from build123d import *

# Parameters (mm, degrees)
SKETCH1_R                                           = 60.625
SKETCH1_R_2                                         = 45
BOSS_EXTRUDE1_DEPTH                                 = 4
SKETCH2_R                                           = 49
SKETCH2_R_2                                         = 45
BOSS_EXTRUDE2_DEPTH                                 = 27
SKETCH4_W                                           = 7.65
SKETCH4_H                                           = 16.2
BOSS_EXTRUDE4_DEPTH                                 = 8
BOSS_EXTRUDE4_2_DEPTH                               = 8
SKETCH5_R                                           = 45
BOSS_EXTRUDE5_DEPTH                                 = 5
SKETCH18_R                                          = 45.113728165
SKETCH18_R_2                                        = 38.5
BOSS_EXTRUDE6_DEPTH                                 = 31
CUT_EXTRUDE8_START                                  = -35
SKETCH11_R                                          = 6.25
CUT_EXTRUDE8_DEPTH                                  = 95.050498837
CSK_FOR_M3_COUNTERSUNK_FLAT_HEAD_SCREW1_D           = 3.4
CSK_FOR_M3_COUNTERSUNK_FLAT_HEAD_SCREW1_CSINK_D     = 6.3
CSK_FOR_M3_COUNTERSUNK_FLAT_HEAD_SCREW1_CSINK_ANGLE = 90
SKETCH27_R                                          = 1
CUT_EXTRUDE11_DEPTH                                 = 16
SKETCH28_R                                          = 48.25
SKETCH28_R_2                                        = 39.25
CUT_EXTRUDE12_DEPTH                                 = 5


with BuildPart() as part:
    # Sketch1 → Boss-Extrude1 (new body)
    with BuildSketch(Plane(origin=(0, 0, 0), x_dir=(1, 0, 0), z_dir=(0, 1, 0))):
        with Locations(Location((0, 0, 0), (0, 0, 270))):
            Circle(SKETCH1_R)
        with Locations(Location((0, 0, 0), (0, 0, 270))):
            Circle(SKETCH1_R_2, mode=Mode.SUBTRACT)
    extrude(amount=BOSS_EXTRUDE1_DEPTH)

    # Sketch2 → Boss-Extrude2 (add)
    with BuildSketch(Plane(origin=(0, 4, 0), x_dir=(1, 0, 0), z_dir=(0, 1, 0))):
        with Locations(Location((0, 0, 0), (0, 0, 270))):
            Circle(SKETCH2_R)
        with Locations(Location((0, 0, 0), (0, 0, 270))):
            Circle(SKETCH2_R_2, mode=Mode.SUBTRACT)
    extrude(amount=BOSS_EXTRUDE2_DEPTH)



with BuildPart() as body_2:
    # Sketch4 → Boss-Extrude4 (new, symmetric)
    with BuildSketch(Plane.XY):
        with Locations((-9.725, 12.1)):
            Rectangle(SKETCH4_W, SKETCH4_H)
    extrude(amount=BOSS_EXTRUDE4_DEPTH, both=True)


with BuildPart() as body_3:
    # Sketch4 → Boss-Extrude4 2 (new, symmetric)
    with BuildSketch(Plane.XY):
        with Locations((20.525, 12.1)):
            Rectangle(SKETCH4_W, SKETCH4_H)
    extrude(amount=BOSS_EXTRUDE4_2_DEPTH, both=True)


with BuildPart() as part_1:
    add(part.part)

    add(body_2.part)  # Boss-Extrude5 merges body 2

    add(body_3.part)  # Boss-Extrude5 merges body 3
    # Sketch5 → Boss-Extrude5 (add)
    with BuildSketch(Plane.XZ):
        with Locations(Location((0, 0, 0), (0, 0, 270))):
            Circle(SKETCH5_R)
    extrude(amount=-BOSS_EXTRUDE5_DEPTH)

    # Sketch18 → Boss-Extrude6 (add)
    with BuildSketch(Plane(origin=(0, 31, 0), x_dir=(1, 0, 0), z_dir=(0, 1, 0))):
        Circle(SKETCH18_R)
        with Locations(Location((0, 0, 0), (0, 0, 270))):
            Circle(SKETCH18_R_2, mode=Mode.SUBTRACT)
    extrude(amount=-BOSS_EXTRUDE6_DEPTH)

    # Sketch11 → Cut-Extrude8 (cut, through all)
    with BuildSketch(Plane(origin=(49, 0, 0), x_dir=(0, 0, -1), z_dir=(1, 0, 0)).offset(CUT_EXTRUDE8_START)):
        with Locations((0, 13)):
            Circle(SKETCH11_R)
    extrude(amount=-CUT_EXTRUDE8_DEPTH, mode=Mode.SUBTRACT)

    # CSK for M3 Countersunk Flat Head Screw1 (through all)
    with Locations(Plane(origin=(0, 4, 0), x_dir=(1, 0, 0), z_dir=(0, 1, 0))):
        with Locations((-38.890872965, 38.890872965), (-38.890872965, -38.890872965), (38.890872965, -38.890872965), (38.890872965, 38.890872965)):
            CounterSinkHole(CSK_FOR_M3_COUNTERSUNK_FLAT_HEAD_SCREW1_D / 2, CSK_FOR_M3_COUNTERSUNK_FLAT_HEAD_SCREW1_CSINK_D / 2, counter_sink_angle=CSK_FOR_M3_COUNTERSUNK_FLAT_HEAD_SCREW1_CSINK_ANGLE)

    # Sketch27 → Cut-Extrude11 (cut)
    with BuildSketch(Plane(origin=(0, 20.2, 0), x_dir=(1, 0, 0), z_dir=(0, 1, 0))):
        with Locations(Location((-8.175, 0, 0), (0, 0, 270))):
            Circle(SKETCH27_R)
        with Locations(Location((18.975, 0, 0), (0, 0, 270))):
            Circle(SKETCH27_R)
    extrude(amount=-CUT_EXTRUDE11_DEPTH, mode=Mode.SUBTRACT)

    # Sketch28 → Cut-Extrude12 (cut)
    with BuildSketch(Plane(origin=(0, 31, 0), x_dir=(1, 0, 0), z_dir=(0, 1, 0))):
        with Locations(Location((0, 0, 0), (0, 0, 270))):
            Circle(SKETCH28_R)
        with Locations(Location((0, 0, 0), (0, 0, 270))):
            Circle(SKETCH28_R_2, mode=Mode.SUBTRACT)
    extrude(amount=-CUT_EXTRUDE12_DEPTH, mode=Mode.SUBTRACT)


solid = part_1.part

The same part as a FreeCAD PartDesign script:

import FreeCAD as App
import Part
import Sketcher


def add_polygon(sketch, points):
    """Adds a closed chain of lines whose ends are joined by coincident constraints."""
    first, n = sketch.GeometryCount, len(points)
    for a, b in zip(points, points[1:] + points[:1]):
        sketch.addGeometry(Part.LineSegment(App.Vector(*a, 0), App.Vector(*b, 0)), False)
    for i in range(n):
        sketch.addConstraint(Sketcher.Constraint("Coincident", first + i, 2, first + (i + 1) % n, 1))

doc = App.newDocument("Part")
body = doc.addObject("PartDesign::Body", "Body")

# Sketch on XZ plane
sketch1 = doc.addObject("Sketcher::SketchObject", "Sketch")
body.addObject(sketch1)
sketch1.AttachmentSupport = (doc.XZ_Plane, [""])
sketch1.MapMode = "FlatFace"
sketch1.addGeometry(Part.Circle(App.Vector(0, 0, 0), App.Vector(0, 0, 1), 61), False)
sketch1.addGeometry(Part.Circle(App.Vector(0, 0, 0), App.Vector(0, 0, 1), 45), False)
sketch1.addConstraint(Sketcher.Constraint("Coincident", 0, 3, -1, 1))
sketch1.addConstraint(Sketcher.Constraint("Coincident", 1, 3, -1, 1))
sketch1.addConstraint(Sketcher.Constraint("Diameter", 1, 90.0))
sketch1.addConstraint(Sketcher.Constraint("Diameter", 0, 121.25))
pad1 = doc.addObject("PartDesign::Pad", "Pad")
body.addObject(pad1)
pad1.Profile = sketch1
pad1.Length = 4
pad1.Reversed = True

# Sketch on XZ plane
sketch2 = doc.addObject("Sketcher::SketchObject", "Sketch001")
body.addObject(sketch2)
sketch2.AttachmentSupport = (doc.XZ_Plane, [""])
sketch2.MapMode = "FlatFace"
sketch2.AttachmentOffset = App.Placement(App.Vector(0, 0, -4), App.Rotation())
sketch2.addGeometry(Part.Circle(App.Vector(0, 0, 0), App.Vector(0, 0, 1), 49), False)
sketch2.addGeometry(Part.Circle(App.Vector(0, 0, 0), App.Vector(0, 0, 1), 45), False)
sketch2.addConstraint(Sketcher.Constraint("Coincident", 0, 3, -1, 1))
sketch2.addConstraint(Sketcher.Constraint("Coincident", 1, 3, -1, 1))
sketch2.addConstraint(Sketcher.Constraint("Diameter", 0, 98.0))
sketch2.addConstraint(Sketcher.Constraint("Diameter", 1, 90.0))
pad2 = doc.addObject("PartDesign::Pad", "Pad001")
body.addObject(pad2)
pad2.Profile = sketch2
pad2.Length = 27
pad2.Reversed = True
body2 = doc.addObject("PartDesign::Body", "Body001")

# Sketch on XY plane
sketch3 = doc.addObject("Sketcher::SketchObject", "Sketch002")
body2.addObject(sketch3)
sketch3.AttachmentSupport = (doc.getObject("XY_Plane001"), [""])
sketch3.MapMode = "FlatFace"
add_polygon(sketch3, [(-14, 20), (-14, 4), (-6, 4), (-6, 20)])  # lines 0-3
sketch3.addConstraint(Sketcher.Constraint("Vertical", 0))
sketch3.addConstraint(Sketcher.Constraint("Horizontal", 1))
sketch3.addConstraint(Sketcher.Constraint("Vertical", 2))
sketch3.addConstraint(Sketcher.Constraint("Horizontal", 3))
sketch3.addConstraint(Sketcher.Constraint("DistanceY", 0, 2, 0, 1, 16.2))
sketch3.addConstraint(Sketcher.Constraint("DistanceY", -1, 1, 0, 2, 4.0))
sketch3.addConstraint(Sketcher.Constraint("DistanceX", 1, 1, 1, 2, 7.65))
sketch3.addConstraint(Sketcher.Constraint("DistanceX", 1, 2, -1, 1, 5.9))
pad3 = doc.addObject("PartDesign::Pad", "Pad002")
body2.addObject(pad3)
pad3.Profile = sketch3
pad3.Length = 16
pad3.Midplane = True
body3 = doc.addObject("PartDesign::Body", "Body002")

# Sketch on XY plane
sketch4 = doc.addObject("Sketcher::SketchObject", "Sketch003")
body3.addObject(sketch4)
sketch4.AttachmentSupport = (doc.getObject("XY_Plane002"), [""])
sketch4.MapMode = "FlatFace"
add_polygon(sketch4, [(17, 20), (17, 4), (24, 4), (24, 20)])  # lines 0-3
sketch4.addConstraint(Sketcher.Constraint("Vertical", 0))
sketch4.addConstraint(Sketcher.Constraint("Horizontal", 1))
sketch4.addConstraint(Sketcher.Constraint("Vertical", 2))
sketch4.addConstraint(Sketcher.Constraint("Horizontal", 3))
sketch4.addConstraint(Sketcher.Constraint("DistanceY", 0, 2, 0, 1, 16.2))
sketch4.addConstraint(Sketcher.Constraint("DistanceY", -1, 1, 0, 2, 4.0))
sketch4.addConstraint(Sketcher.Constraint("DistanceX", 1, 1, 1, 2, 7.65))
sketch4.addConstraint(Sketcher.Constraint("DistanceX", -1, 1, 0, 2, 16.7))
pad4 = doc.addObject("PartDesign::Pad", "Pad003")
body3.addObject(pad4)
pad4.Profile = sketch4
pad4.Length = 16
pad4.Midplane = True
body.AllowCompound = True
doc.recompute()

boolean = doc.addObject("PartDesign::Boolean", "Boolean")
body.addObject(boolean)
boolean.Type = "Fuse"
boolean.addObjects([body2])
doc.recompute()

boolean2 = doc.addObject("PartDesign::Boolean", "Boolean001")
body.addObject(boolean2)
boolean2.Type = "Fuse"
boolean2.addObjects([body3])

# Sketch on XZ plane
sketch5 = doc.addObject("Sketcher::SketchObject", "Sketch004")
body.addObject(sketch5)
sketch5.AttachmentSupport = (doc.XZ_Plane, [""])
sketch5.MapMode = "FlatFace"
sketch5.addGeometry(Part.Circle(App.Vector(0, 0, 0), App.Vector(0, 0, 1), 45), False)
sketch5.addConstraint(Sketcher.Constraint("Coincident", 0, 3, -1, 1))
sketch5.addConstraint(Sketcher.Constraint("Diameter", 0, 90.0))
pad5 = doc.addObject("PartDesign::Pad", "Pad004")
body.addObject(pad5)
pad5.Profile = sketch5
pad5.Length = 5
pad5.Reversed = True

# Sketch on XZ plane
sketch6 = doc.addObject("Sketcher::SketchObject", "Sketch005")
body.addObject(sketch6)
sketch6.AttachmentSupport = (doc.XZ_Plane, [""])
sketch6.MapMode = "FlatFace"
sketch6.AttachmentOffset = App.Placement(App.Vector(0, 0, -31), App.Rotation())
sketch6.addGeometry(Part.Circle(App.Vector(0, 0, 0), App.Vector(0, 0, 1), 45), False)
sketch6.addGeometry(Part.Circle(App.Vector(0, 0, 0), App.Vector(0, 0, 1), 38), False)
sketch6.addConstraint(Sketcher.Constraint("Coincident", 0, 3, -1, 1))
sketch6.addConstraint(Sketcher.Constraint("Coincident", 1, 3, -1, 1))
sketch6.addConstraint(Sketcher.Constraint("Diameter", 1, 77.0))
sketch6.addConstraint(Sketcher.Constraint("Diameter", 0, 90.227456))
pad6 = doc.addObject("PartDesign::Pad", "Pad005")
body.addObject(pad6)
pad6.Profile = sketch6
pad6.Length = 31

# Sketch on YZ plane
sketch7 = doc.addObject("Sketcher::SketchObject", "Sketch006")
body.addObject(sketch7)
sketch7.AttachmentSupport = (doc.YZ_Plane, [""])
sketch7.MapMode = "FlatFace"
sketch7.AttachmentOffset = App.Placement(App.Vector(0, 0, 14), App.Rotation())
sketch7.addGeometry(Part.Circle(App.Vector(13, 0, 0), App.Vector(0, 0, 1), 6), False)
sketch7.addConstraint(Sketcher.Constraint("PointOnObject", 0, 3, -1))
sketch7.addConstraint(Sketcher.Constraint("Diameter", 0, 12.5))
sketch7.addConstraint(Sketcher.Constraint("DistanceX", -1, 1, 0, 3, 13.0))
pocket1 = doc.addObject("PartDesign::Pocket", "Pocket")
body.addObject(pocket1)
pocket1.Profile = sketch7
pocket1.Type = "ThroughAll"

# Sketch on XZ plane
sketch8 = doc.addObject("Sketcher::SketchObject", "Sketch007")
body.addObject(sketch8)
sketch8.AttachmentSupport = (doc.XZ_Plane, [""])
sketch8.MapMode = "FlatFace"
sketch8.AttachmentOffset = App.Placement(App.Vector(0, 0, -4), App.Rotation())
sketch8.addGeometry(Part.Circle(App.Vector(-38.9, -38.9, 0), App.Vector(0, 0, 1), 1.7), False)
sketch8.addGeometry(Part.Circle(App.Vector(-38.9, 38.9, 0), App.Vector(0, 0, 1), 1.7), False)
sketch8.addGeometry(Part.Circle(App.Vector(38.9, 38.9, 0), App.Vector(0, 0, 1), 1.7), False)
sketch8.addGeometry(Part.Circle(App.Vector(38.9, -38.9, 0), App.Vector(0, 0, 1), 1.7), False)
sketch8.addConstraint(Sketcher.Constraint("Equal", 0, 1))
sketch8.addConstraint(Sketcher.Constraint("Equal", 1, 2))
sketch8.addConstraint(Sketcher.Constraint("Equal", 2, 3))
sketch8.addConstraint(Sketcher.Constraint("Symmetric", 0, 3, 2, 3, -1, 1))
sketch8.addConstraint(Sketcher.Constraint("Symmetric", 1, 3, 3, 3, -1, 1))
sketch8.addConstraint(Sketcher.Constraint("Symmetric", 1, 3, 2, 3, -2))
sketch8.addConstraint(Sketcher.Constraint("Diameter", 0, 3.4))
sketch8.addConstraint(Sketcher.Constraint("DistanceX", 0, 3, -1, 1, 38.890873))
sketch8.addConstraint(Sketcher.Constraint("DistanceY", 0, 3, -1, 1, 38.890873))
doc.recompute()
hole = doc.addObject("PartDesign::Hole", "Hole")
body.addObject(hole)
hole.Profile = sketch8
hole.ThreadType = "None"
hole.Diameter = 3.4
hole.DepthType = "ThroughAll"
hole.HoleCutType = "Countersink"
hole.HoleCutDiameter = 6.3
hole.HoleCutCountersinkAngle = 90
hole.Reversed = True

# Sketch on XZ plane
sketch9 = doc.addObject("Sketcher::SketchObject", "Sketch008")
body.addObject(sketch9)
sketch9.AttachmentSupport = (doc.XZ_Plane, [""])
sketch9.MapMode = "FlatFace"
sketch9.AttachmentOffset = App.Placement(App.Vector(0, 0, -20.2), App.Rotation())
sketch9.addGeometry(Part.Circle(App.Vector(-8.2, 0, 0), App.Vector(0, 0, 1), 1), False)
sketch9.addGeometry(Part.Circle(App.Vector(19, 0, 0), App.Vector(0, 0, 1), 1), False)
sketch9.addConstraint(Sketcher.Constraint("Equal", 0, 1))
sketch9.addConstraint(Sketcher.Constraint("PointOnObject", 0, 3, -1))
sketch9.addConstraint(Sketcher.Constraint("PointOnObject", 1, 3, -1))
sketch9.addConstraint(Sketcher.Constraint("Diameter", 0, 2.0))
sketch9.addConstraint(Sketcher.Constraint("DistanceX", 0, 3, 1, 3, 27.15))
sketch9.addConstraint(Sketcher.Constraint("DistanceX", 0, 3, -1, 1, 8.175))
pocket2 = doc.addObject("PartDesign::Pocket", "Pocket001")
body.addObject(pocket2)
pocket2.Profile = sketch9
pocket2.Length = 16
pocket2.Reversed = True

# Sketch on XZ plane
sketch10 = doc.addObject("Sketcher::SketchObject", "Sketch009")
body.addObject(sketch10)
sketch10.AttachmentSupport = (doc.XZ_Plane, [""])
sketch10.MapMode = "FlatFace"
sketch10.AttachmentOffset = App.Placement(App.Vector(0, 0, -31), App.Rotation())
sketch10.addGeometry(Part.Circle(App.Vector(0, 0, 0), App.Vector(0, 0, 1), 48), False)
sketch10.addGeometry(Part.Circle(App.Vector(0, 0, 0), App.Vector(0, 0, 1), 39), False)
sketch10.addConstraint(Sketcher.Constraint("Coincident", 0, 3, -1, 1))
sketch10.addConstraint(Sketcher.Constraint("Coincident", 1, 3, -1, 1))
sketch10.addConstraint(Sketcher.Constraint("Diameter", 0, 96.5))
sketch10.addConstraint(Sketcher.Constraint("Diameter", 1, 78.5))
pocket3 = doc.addObject("PartDesign::Pocket", "Pocket002")
body.addObject(pocket3)
pocket3.Profile = sketch10
pocket3.Length = 5
pocket3.Reversed = True

doc.recompute()
